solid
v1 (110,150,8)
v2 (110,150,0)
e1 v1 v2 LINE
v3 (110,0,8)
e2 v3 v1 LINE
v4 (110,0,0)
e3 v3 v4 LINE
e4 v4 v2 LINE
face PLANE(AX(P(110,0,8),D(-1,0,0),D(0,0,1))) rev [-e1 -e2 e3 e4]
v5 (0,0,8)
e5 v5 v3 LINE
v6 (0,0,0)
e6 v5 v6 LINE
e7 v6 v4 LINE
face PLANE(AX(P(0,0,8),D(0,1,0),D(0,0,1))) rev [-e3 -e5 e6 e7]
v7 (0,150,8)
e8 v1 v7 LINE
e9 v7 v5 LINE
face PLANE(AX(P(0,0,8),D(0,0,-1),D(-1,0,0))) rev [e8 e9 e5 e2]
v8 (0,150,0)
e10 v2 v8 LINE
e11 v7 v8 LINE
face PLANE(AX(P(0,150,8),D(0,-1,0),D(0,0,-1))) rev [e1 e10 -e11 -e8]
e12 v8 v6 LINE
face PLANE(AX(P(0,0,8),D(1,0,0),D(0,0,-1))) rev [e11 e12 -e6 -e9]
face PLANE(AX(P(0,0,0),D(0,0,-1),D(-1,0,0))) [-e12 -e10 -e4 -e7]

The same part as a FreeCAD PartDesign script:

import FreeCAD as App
import Part
import Sketcher
from FreeCAD import Vector


def add_polygon(sketch, points):
    """Adds a closed chain of lines whose ends are joined by coincident constraints."""
    first, n = sketch.GeometryCount, len(points)
    for a, b in zip(points, points[1:] + points[:1]):
        sketch.addGeometry(Part.LineSegment(App.Vector(*a, 0), App.Vector(*b, 0)), False)
    for i in range(n):
        sketch.addConstraint(Sketcher.Constraint("Coincident", first + i, 2, first + (i + 1) % n, 1))

doc = App.newDocument("Part")
body = doc.addObject("PartDesign::Body", "Body")

# Sketch on XY plane
sketch1 = doc.addObject("Sketcher::SketchObject", "Sketch")
body.addObject(sketch1)
sketch1.AttachmentSupport = (doc.XY_Plane, [""])
sketch1.MapMode = "FlatFace"
add_polygon(sketch1, [(0, 150), (0, 0), (110, 0), (110, 150)])  # lines 0-3
sketch1.addConstraint([
    Sketcher.Constraint("Vertical", 0),
    Sketcher.Constraint("Horizontal", 1),
    Sketcher.Constraint("Vertical", 2),
    Sketcher.Constraint("Horizontal", 3),
    Sketcher.Constraint("Coincident", 0, 2, -1, 1),
    Sketcher.Constraint("DistanceX", 1, 1, 1, 2, 110.0),
    Sketcher.Constraint("DistanceY", 0, 2, 0, 1, 150.0),
])
pad1 = doc.addObject("PartDesign::Pad", "Pad")
body.addObject(pad1)
pad1.Profile = sketch1
pad1.Length = 8

doc.recompute()
